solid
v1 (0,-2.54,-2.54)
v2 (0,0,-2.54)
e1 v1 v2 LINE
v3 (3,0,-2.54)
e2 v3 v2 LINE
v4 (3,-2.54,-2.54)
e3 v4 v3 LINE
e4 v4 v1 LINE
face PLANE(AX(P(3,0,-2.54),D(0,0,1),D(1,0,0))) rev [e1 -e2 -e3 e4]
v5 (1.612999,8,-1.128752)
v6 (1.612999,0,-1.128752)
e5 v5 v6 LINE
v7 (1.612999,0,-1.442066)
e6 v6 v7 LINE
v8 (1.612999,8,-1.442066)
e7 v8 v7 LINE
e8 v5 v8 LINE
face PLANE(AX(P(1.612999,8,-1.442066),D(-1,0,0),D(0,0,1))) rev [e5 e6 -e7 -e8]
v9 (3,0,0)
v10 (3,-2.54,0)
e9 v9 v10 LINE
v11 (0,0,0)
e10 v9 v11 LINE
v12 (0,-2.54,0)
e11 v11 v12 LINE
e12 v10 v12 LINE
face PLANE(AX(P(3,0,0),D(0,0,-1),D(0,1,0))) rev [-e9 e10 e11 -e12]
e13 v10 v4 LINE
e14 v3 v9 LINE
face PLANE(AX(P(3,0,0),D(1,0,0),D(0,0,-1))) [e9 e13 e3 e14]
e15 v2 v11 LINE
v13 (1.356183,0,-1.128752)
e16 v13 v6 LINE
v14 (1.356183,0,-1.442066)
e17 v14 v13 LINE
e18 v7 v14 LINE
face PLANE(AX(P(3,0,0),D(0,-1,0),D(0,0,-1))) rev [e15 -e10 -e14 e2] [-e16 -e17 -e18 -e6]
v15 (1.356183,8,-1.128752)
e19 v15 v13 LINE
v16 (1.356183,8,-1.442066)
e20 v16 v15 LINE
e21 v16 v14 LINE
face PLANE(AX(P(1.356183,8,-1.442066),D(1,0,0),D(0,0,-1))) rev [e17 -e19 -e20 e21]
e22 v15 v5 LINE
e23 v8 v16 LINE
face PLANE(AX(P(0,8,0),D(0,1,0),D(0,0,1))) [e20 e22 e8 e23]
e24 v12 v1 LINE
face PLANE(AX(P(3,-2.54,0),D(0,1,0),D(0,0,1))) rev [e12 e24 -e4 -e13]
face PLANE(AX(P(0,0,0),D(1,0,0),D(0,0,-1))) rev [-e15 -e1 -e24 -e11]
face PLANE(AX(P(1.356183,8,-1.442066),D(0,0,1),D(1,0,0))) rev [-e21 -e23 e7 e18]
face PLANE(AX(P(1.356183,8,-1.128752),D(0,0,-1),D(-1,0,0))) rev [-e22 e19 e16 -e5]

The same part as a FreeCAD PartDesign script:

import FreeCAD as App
import Part
import Sketcher

V = App.Vector

doc = App.newDocument("Part")
body = doc.addObject("PartDesign::Body", "Body")

sketch1 = body.newObject("Sketcher::SketchObject", "Sketch")
sketch1.AttachmentSupport = (doc.getObject("YZ_Plane"), [""])
sketch1.MapMode = "FlatFace"
sketch1.addGeometry([
    Part.LineSegment(V(0, 0, 0), V(-2.54, 0, 0)),
    Part.LineSegment(V(-2.54, 0, 0), V(-2.54, -2.54, 0)),
    Part.LineSegment(V(-2.54, -2.54, 0), V(0, -2.54, 0)),
    Part.LineSegment(V(0, -2.54, 0), V(0, 0, 0)),
], False)
sketch1.addConstraint([
    Sketcher.Constraint("Coincident", 0, 2, 1, 1),
    Sketcher.Constraint("Coincident", 1, 2, 2, 1),
    Sketcher.Constraint("Coincident", 2, 2, 3, 1),
    Sketcher.Constraint("Coincident", 3, 2, 0, 1),
    Sketcher.Constraint("Horizontal", 0),
    Sketcher.Constraint("Vertical", 1),
    Sketcher.Constraint("Horizontal", 2),
    Sketcher.Constraint("Vertical", 3),
    Sketcher.Constraint("Coincident", 3, 2, -1, 1),
    Sketcher.Constraint("Equal", 2, 1),
    Sketcher.Constraint("DistanceX", 0, 2, 0, 1, 2.54),
])
pad1 = body.newObject("PartDesign::Pad", "Pad")
pad1.Profile = sketch1
pad1.Length = 3

sketch2 = body.newObject("Sketcher::SketchObject", "Sketch001")
sketch2.AttachmentSupport = (doc.getObject("XZ_Plane"), [""])
sketch2.MapMode = "FlatFace"
sketch2.addGeometry([
    Part.LineSegment(V(1.356183, -1.442066, 0), V(1.356183, -1.128752, 0)),
    Part.LineSegment(V(1.356183, -1.128752, 0), V(1.612999, -1.128752, 0)),
    Part.LineSegment(V(1.612999, -1.128752, 0), V(1.612999, -1.442066, 0)),
    Part.LineSegment(V(1.612999, -1.442066, 0), V(1.356183, -1.442066, 0)),
], False)
sketch2.addConstraint([
    Sketcher.Constraint("Coincident", 0, 2, 1, 1),
    Sketcher.Constraint("Coincident", 1, 2, 2, 1),
    Sketcher.Constraint("Coincident", 2, 2, 3, 1),
    Sketcher.Constraint("Coincident", 3, 2, 0, 1),
    Sketcher.Constraint("Vertical", 0),
    Sketcher.Constraint("Horizontal", 1),
    Sketcher.Constraint("Vertical", 2),
    Sketcher.Constraint("Horizontal", 3),
    Sketcher.Constraint("DistanceX", -1, 1, 1, 2, 1.612999),
    Sketcher.Constraint("DistanceX", 1, 1, 1, 2, 0.256815),
    Sketcher.Constraint("DistanceY", 0, 1, 0, 2, 0.313315),
    Sketcher.Constraint("DistanceY", 0, 2, -1, 1, 1.128752),
])
pad2 = body.newObject("PartDesign::Pad", "Pad001")
pad2.Profile = sketch2
pad2.Length = 8
pad2.Reversed = True

doc.recompute()
